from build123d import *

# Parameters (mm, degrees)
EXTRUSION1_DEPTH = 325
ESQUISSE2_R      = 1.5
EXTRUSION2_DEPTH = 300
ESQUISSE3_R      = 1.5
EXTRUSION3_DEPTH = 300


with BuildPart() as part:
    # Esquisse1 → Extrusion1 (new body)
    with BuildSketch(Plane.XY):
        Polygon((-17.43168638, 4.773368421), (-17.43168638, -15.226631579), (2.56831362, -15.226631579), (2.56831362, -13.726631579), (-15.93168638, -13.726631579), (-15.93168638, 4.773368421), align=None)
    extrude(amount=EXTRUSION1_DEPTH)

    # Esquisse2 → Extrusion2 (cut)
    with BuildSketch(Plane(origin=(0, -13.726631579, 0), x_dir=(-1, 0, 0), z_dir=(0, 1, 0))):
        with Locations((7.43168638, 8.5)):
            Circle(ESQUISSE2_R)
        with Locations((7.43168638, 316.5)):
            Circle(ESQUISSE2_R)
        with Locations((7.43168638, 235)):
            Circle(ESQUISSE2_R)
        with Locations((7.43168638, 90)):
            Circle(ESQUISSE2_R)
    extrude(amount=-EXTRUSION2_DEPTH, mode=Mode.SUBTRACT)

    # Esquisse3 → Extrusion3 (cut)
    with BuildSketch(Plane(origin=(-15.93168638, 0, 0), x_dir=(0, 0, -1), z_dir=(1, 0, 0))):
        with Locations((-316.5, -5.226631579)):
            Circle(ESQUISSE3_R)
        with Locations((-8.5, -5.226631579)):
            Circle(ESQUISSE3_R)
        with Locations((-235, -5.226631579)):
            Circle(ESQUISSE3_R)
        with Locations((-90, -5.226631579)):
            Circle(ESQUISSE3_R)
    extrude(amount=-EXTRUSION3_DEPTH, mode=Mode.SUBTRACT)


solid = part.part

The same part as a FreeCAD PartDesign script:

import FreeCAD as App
import Part
import Sketcher

V = App.Vector
Q = App.Units.Quantity

doc = App.newDocument("Part")
body = doc.addObject("PartDesign::Body", "Body")

# Sketch on XY plane
sketch1 = body.newObject("Sketcher::SketchObject", "Sketch")
sketch1.AttachmentSupport = (doc.getObject("XY_Plane"), [""])
sketch1.MapMode = "FlatFace"
sketch1.addGeometry(Part.LineSegment(V(-17.431686, 4.773368, 0), V(-17.431686, -15.226632, 0)), False)
sketch1.addGeometry(Part.LineSegment(V(-17.431686, -15.226632, 0), V(2.568314, -15.226632, 0)), False)
sketch1.addGeometry(Part.LineSegment(V(2.568314, -15.226632, 0), V(2.568314, -13.726632, 0)), False)
sketch1.addGeometry(Part.LineSegment(V(2.568314, -13.726632, 0), V(-15.931686, -13.726632, 0)), False)
sketch1.addGeometry(Part.LineSegment(V(-15.931686, -13.726632, 0), V(-15.931686, 4.773368, 0)), False)
sketch1.addGeometry(Part.LineSegment(V(-15.931686, 4.773368, 0), V(-17.431686, 4.773368, 0)), False)
sketch1.addConstraint(Sketcher.Constraint("Coincident", 0, 2, 1, 1))
sketch1.addConstraint(Sketcher.Constraint("Coincident", 1, 2, 2, 1))
sketch1.addConstraint(Sketcher.Constraint("Coincident", 2, 2, 3, 1))
sketch1.addConstraint(Sketcher.Constraint("Coincident", 3, 2, 4, 1))
sketch1.addConstraint(Sketcher.Constraint("Coincident", 4, 2, 5, 1))
sketch1.addConstraint(Sketcher.Constraint("Coincident", 5, 2, 0, 1))
sketch1.addConstraint(Sketcher.Constraint("Vertical", 0))
sketch1.addConstraint(Sketcher.Constraint("Horizontal", 1))
sketch1.addConstraint(Sketcher.Constraint("Vertical", 2))
sketch1.addConstraint(Sketcher.Constraint("Horizontal", 3))
sketch1.addConstraint(Sketcher.Constraint("Vertical", 4))
sketch1.addConstraint(Sketcher.Constraint("Horizontal", 5))
sketch1.addConstraint(Sketcher.Constraint("Equal", 1, 0))
sketch1.addConstraint(Sketcher.Constraint("Equal", 5, 2))
sketch1.addConstraint(Sketcher.Constraint("DistanceX", 1, 1, 1, 2, Q("20 mm")))
sketch1.addConstraint(Sketcher.Constraint("DistanceX", 3, 2, 3, 1, Q("18.5 mm")))
sketch1.addConstraint(Sketcher.Constraint("DistanceY", 0, 2, -1, 1, Q("15.226632 mm")))
sketch1.addConstraint(Sketcher.Constraint("DistanceX", 0, 2, -1, 1, Q("17.431686 mm")))
pad1 = body.newObject("PartDesign::Pad", "Pad")
pad1.Profile = sketch1
pad1.Length = 325

# Sketch on XZ plane
sketch2 = body.newObject("Sketcher::SketchObject", "Sketch001")
sketch2.AttachmentSupport = (doc.getObject("XZ_Plane"), [""])
sketch2.MapMode = "FlatFace"
sketch2.AttachmentOffset = App.Placement(V(0, 0, 13.726632), App.Rotation())
sketch2.addGeometry(Part.Circle(V(-7.431686, 8.5, 0), V(0, 0, 1), 1.5), False)
sketch2.addGeometry(Part.Circle(V(-7.431686, 316.5, 0), V(0, 0, 1), 1.5), False)
sketch2.addGeometry(Part.Circle(V(-7.431686, 235, 0), V(0, 0, 1), 1.5), False)
sketch2.addGeometry(Part.Circle(V(-7.431686, 90, 0), V(0, 0, 1), 1.5), False)
sketch2.addConstraint(Sketcher.Constraint("Equal", 0, 1))
sketch2.addConstraint(Sketcher.Constraint("Equal", 1, 2))
sketch2.addConstraint(Sketcher.Constraint("Equal", 2, 3))
sketch2.addConstraint(Sketcher.Constraint("Vertical", 0, 3, 1, 3))
sketch2.addConstraint(Sketcher.Constraint("Vertical", 1, 3, 2, 3))
sketch2.addConstraint(Sketcher.Constraint("Vertical", 2, 3, 3, 3))
sketch2.addConstraint(Sketcher.Constraint("Diameter", 0, Q("3 mm")))
sketch2.addConstraint(Sketcher.Constraint("DistanceY", -1, 1, 2, 3, Q("235 mm")))
sketch2.addConstraint(Sketcher.Constraint("DistanceY", -1, 1, 3, 3, Q("90 mm")))
sketch2.addConstraint(Sketcher.Constraint("DistanceY", 0, 3, 1, 3, Q("308 mm")))
sketch2.addConstraint(Sketcher.Constraint("DistanceY", -1, 1, 0, 3, Q("8.5 mm")))
sketch2.addConstraint(Sketcher.Constraint("DistanceX", 0, 3, -1, 1, Q("7.431686 mm")))
pocket1 = body.newObject("PartDesign::Pocket", "Pocket")
pocket1.Profile = sketch2
pocket1.Length = 300
pocket1.Reversed = True

# Sketch on YZ plane
sketch3 = body.newObject("Sketcher::SketchObject", "Sketch002")
sketch3.AttachmentSupport = (doc.getObject("YZ_Plane"), [""])
sketch3.MapMode = "FlatFace"
sketch3.AttachmentOffset = App.Placement(V(0, 0, -15.931686), App.Rotation())
sketch3.addGeometry(Part.Circle(V(-5.226632, 316.5, 0), V(0, 0, 1), 1.5), False)
sketch3.addGeometry(Part.Circle(V(-5.226632, 8.5, 0), V(0, 0, 1), 1.5), False)
sketch3.addGeometry(Part.Circle(V(-5.226632, 235, 0), V(0, 0, 1), 1.5), False)
sketch3.addGeometry(Part.Circle(V(-5.226632, 90, 0), V(0, 0, 1), 1.5), False)
sketch3.addConstraint(Sketcher.Constraint("Equal", 0, 1))
sketch3.addConstraint(Sketcher.Constraint("Equal", 1, 2))
sketch3.addConstraint(Sketcher.Constraint("Equal", 2, 3))
sketch3.addConstraint(Sketcher.Constraint("Vertical", 0, 3, 1, 3))
sketch3.addConstraint(Sketcher.Constraint("Vertical", 1, 3, 2, 3))
sketch3.addConstraint(Sketcher.Constraint("Vertical", 2, 3, 3, 3))
sketch3.addConstraint(Sketcher.Constraint("Diameter", 0, Q("3 mm")))
sketch3.addConstraint(Sketcher.Constraint("DistanceY", -1, 1, 2, 3, Q("235 mm")))
sketch3.addConstraint(Sketcher.Constraint("DistanceY", -1, 1, 3, 3, Q("90 mm")))
sketch3.addConstraint(Sketcher.Constraint("DistanceY", 1, 3, 0, 3, Q("308 mm")))
sketch3.addConstraint(Sketcher.Constraint("DistanceY", -1, 1, 0, 3, Q("316.5 mm")))
sketch3.addConstraint(Sketcher.Constraint("DistanceX", 0, 3, -1, 1, Q("5.226632 mm")))
pocket2 = body.newObject("PartDesign::Pocket", "Pocket001")
pocket2.Profile = sketch3
pocket2.Length = 300

doc.recompute()
